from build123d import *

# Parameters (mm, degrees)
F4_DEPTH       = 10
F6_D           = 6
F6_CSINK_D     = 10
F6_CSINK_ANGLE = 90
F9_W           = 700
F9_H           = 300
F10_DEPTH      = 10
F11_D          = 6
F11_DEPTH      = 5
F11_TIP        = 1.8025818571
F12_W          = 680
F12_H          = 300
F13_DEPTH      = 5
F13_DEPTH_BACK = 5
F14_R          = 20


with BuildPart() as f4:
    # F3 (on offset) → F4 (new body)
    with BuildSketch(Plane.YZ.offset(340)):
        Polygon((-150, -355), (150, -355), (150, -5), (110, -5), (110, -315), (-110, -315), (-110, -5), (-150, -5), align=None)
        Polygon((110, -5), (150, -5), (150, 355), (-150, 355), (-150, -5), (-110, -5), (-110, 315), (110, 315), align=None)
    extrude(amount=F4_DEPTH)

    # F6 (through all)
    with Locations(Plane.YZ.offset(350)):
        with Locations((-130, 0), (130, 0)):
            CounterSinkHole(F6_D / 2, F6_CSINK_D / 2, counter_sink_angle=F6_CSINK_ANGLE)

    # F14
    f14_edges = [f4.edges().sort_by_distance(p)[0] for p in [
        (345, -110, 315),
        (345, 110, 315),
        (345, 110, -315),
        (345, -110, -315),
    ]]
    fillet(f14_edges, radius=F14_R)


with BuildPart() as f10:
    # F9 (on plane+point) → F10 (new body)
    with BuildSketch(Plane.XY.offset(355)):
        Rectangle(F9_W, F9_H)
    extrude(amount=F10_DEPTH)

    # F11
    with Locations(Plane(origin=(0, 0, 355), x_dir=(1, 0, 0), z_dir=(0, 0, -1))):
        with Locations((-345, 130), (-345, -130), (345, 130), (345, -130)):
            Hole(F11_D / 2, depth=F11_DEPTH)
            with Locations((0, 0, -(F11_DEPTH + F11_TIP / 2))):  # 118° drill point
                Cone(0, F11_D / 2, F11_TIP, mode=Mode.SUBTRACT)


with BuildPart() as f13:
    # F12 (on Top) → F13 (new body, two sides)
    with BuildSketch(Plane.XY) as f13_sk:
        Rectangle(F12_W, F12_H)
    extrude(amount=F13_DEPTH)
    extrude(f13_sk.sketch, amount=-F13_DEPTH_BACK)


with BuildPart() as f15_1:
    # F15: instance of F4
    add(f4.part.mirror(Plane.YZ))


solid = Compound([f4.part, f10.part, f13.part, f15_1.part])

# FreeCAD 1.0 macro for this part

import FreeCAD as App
import Part
import Sketcher
from FreeCAD import Vector


def edges_at(feature, points):
    """Names of the edges that pass closest to the given points."""
    edges = feature.Shape.Edges
    near = lambda p: min(range(len(edges)), key=lambda i: edges[i].distToShape(Part.Vertex(*p))[0])
    return sorted({f"Edge{near(p) + 1}" for p in points})


def add_polygon(sketch, points):
    """Adds a closed chain of lines whose ends are joined by coincident constraints."""
    first, n = sketch.GeometryCount, len(points)
    for a, b in zip(points, points[1:] + points[:1]):
        sketch.addGeometry(Part.LineSegment(App.Vector(*a, 0), App.Vector(*b, 0)), False)
    for i in range(n):
        sketch.addConstraint(Sketcher.Constraint("Coincident", first + i, 2, first + (i + 1) % n, 1))

doc = App.newDocument("Part")
body = doc.addObject("PartDesign::Body", "Body")

sketch1 = body.newObject("Sketcher::SketchObject", "Sketch")
sketch1.AttachmentSupport = (doc.getObject("YZ_Plane"), [""])
sketch1.MapMode = "FlatFace"
sketch1.AttachmentOffset = App.Placement(Vector(0, 0, 340), App.Rotation())
add_polygon(sketch1, [(-150, -355), (150, -355), (150, 355), (-150, 355)])
add_polygon(sketch1, [(110, -315), (-110, -315), (-110, 315), (110, 315)])
sketch1.addConstraint([
    Sketcher.Constraint("Horizontal", 0),
    Sketcher.Constraint("Vertical", 1),
    Sketcher.Constraint("Horizontal", 2),
    Sketcher.Constraint("Vertical", 3),
    Sketcher.Constraint("Horizontal", 4),
    Sketcher.Constraint("Vertical", 5),
    Sketcher.Constraint("Horizontal", 6),
    Sketcher.Constraint("Vertical", 7),
    Sketcher.Constraint("Symmetric", 0, 2, 2, 2, -1, 1),
    Sketcher.Constraint("Symmetric", 4, 2, 6, 2, -1, 1),
    Sketcher.Constraint("DistanceX", 0, 1, 0, 2, 300.0),
    Sketcher.Constraint("DistanceX", 4, 2, 4, 1, 220.0),
    Sketcher.Constraint("DistanceY", 1, 1, 1, 2, 710.0),
    Sketcher.Constraint("DistanceY", 5, 1, 5, 2, 630.0),
])
pad1 = body.newObject("PartDesign::Pad", "Pad")
pad1.Profile = sketch1
pad1.Length = 10

sketch2 = body.newObject("Sketcher::SketchObject", "Sketch001")
sketch2.AttachmentSupport = (doc.getObject("YZ_Plane"), [""])
sketch2.MapMode = "FlatFace"
sketch2.AttachmentOffset = App.Placement(Vector(0, 0, 350), App.Rotation())
sketch2.addGeometry([
    Part.Circle(Vector(-130, 0, 0), Vector(0, 0, 1), 3),
    Part.Circle(Vector(130, 0, 0), Vector(0, 0, 1), 3),
], False)
sketch2.addConstraint([
    Sketcher.Constraint("Equal", 0, 1),
    Sketcher.Constraint("Symmetric", 0, 3, 1, 3, -1, 1),
    Sketcher.Constraint("PointOnObject", 0, 3, -1),
    Sketcher.Constraint("Diameter", 0, 6.0),
    Sketcher.Constraint("DistanceX", 0, 3, -1, 1, 130.0),
])
doc.recompute()
hole = body.newObject("PartDesign::Hole", "Hole")
hole.Profile = sketch2
hole.ThreadType = "None"
hole.Diameter = 6
hole.DepthType = "ThroughAll"
hole.HoleCutType = "Countersink"
hole.HoleCutDiameter = 10
hole.HoleCutCountersinkAngle = 90
doc.recompute()

fillet = body.newObject("PartDesign::Fillet", "Fillet")
fillet.Base = (hole, edges_at(hole, [
    (345, -110, 315),
    (345, 110, 315),
    (345, 110, -315),
    (345, -110, -315),
]))
fillet.Radius = 20
body2 = doc.addObject("PartDesign::Body", "Body001")

sketch3 = body2.newObject("Sketcher::SketchObject", "Sketch002")
sketch3.AttachmentSupport = (doc.getObject("XY_Plane001"), [""])
sketch3.MapMode = "FlatFace"
sketch3.AttachmentOffset = App.Placement(Vector(0, 0, 355), App.Rotation())
add_polygon(sketch3, [(-350, 150), (-350, -150), (350, -150), (350, 150)])
sketch3.addConstraint([
    Sketcher.Constraint("Vertical", 0),
    Sketcher.Constraint("Horizontal", 1),
    Sketcher.Constraint("Vertical", 2),
    Sketcher.Constraint("Horizontal", 3),
    Sketcher.Constraint("Symmetric", 0, 2, 2, 2, -1, 1),
    Sketcher.Constraint("DistanceX", 1, 1, 1, 2, 700.0),
    Sketcher.Constraint("DistanceY", 0, 2, 0, 1, 300.0),
])
pad2 = body2.newObject("PartDesign::Pad", "Pad001")
pad2.Profile = sketch3
pad2.Length = 10

sketch4 = body2.newObject("Sketcher::SketchObject", "Sketch003")
sketch4.AttachmentSupport = (doc.getObject("XY_Plane001"), [""])
sketch4.MapMode = "FlatFace"
sketch4.AttachmentOffset = App.Placement(Vector(0, 0, 355), App.Rotation())
sketch4.addGeometry([
    Part.Circle(Vector(-345, -130, 0), Vector(0, 0, 1), 3),
    Part.Circle(Vector(-345, 130, 0), Vector(0, 0, 1), 3),
    Part.Circle(Vector(345, -130, 0), Vector(0, 0, 1), 3),
    Part.Circle(Vector(345, 130, 0), Vector(0, 0, 1), 3),
], False)
sketch4.addConstraint([
    Sketcher.Constraint("Equal", 0, 1),
    Sketcher.Constraint("Equal", 1, 2),
    Sketcher.Constraint("Equal", 2, 3),
    Sketcher.Constraint("Symmetric", 1, 3, 2, 3, -1, 1),
    Sketcher.Constraint("Symmetric", 0, 3, 3, 3, -1, 1),
    Sketcher.Constraint("Symmetric", 0, 3, 2, 3, -2),
    Sketcher.Constraint("Diameter", 0, 6.0),
    Sketcher.Constraint("DistanceX", 0, 3, -1, 1, 345.0),
    Sketcher.Constraint("DistanceY", 0, 3, -1, 1, 130.0),
])
doc.recompute()
hole2 = body2.newObject("PartDesign::Hole", "Hole001")
hole2.Profile = sketch4
hole2.ThreadType = "None"
hole2.Diameter = 6
hole2.DepthType = "Dimension"
hole2.Depth = 5
hole2.DrillPoint = "Angled"
hole2.DrillPointAngle = 118
hole2.Reversed = True
body3 = doc.addObject("PartDesign::Body", "Body002")

sketch5 = body3.newObject("Sketcher::SketchObject", "Sketch004")
sketch5.AttachmentSupport = (doc.getObject("XY_Plane002"), [""])
sketch5.MapMode = "FlatFace"
add_polygon(sketch5, [(-340, 150), (-340, -150), (340, -150), (340, 150)])
sketch5.addConstraint([
    Sketcher.Constraint("Vertical", 0),
    Sketcher.Constraint("Horizontal", 1),
    Sketcher.Constraint("Vertical", 2),
    Sketcher.Constraint("Horizontal", 3),
    Sketcher.Constraint("Symmetric", 0, 2, 2, 2, -1, 1),
    Sketcher.Constraint("DistanceX", 1, 1, 1, 2, 680.0),
    Sketcher.Constraint("DistanceY", 0, 2, 0, 1, 300.0),
])
pad3 = body3.newObject("PartDesign::Pad", "Pad002")
pad3.Profile = sketch5
pad3.Type = "TwoLengths"
pad3.Length = 5
pad3.Length2 = 5
body4 = doc.addObject("PartDesign::Body", "Body003")
doc.recompute()

mirroring = doc.addObject("Part::Mirroring", "Mirroring")
mirroring.Source = body
mirroring.Base = Vector(0, 0, 0)
mirroring.Normal = Vector(1, 0, 0)
body4.BaseFeature = mirroring
doc.recompute()
mirroring.Visibility = False

doc.recompute()
